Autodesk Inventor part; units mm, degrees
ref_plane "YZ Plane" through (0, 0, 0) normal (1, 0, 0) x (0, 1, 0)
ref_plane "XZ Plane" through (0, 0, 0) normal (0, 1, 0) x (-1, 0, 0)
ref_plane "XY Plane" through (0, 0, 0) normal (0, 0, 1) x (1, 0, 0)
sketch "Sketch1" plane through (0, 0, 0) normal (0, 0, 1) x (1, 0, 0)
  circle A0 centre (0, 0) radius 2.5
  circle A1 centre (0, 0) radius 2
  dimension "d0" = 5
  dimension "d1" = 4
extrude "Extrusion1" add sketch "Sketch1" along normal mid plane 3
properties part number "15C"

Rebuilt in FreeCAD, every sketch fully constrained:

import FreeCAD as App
import Part
import Sketcher
from FreeCAD import Vector
Q = App.Units.Quantity

doc = App.newDocument("Part")
body = doc.addObject("PartDesign::Body", "Body")

# Sketch on XY plane
sketch1 = doc.addObject("Sketcher::SketchObject", "Sketch")
body.addObject(sketch1)
sketch1.AttachmentSupport = (doc.XY_Plane, [""])
sketch1.MapMode = "FlatFace"
sketch1.addGeometry(Part.Circle(Vector(0, 0, 0), Vector(0, 0, 1), 2.5), False)
sketch1.addGeometry(Part.Circle(Vector(0, 0, 0), Vector(0, 0, 1), 2), False)
sketch1.addConstraint(Sketcher.Constraint("Coincident", 0, 3, -1, 1))
sketch1.addConstraint(Sketcher.Constraint("Coincident", 1, 3, -1, 1))
sketch1.addConstraint(Sketcher.Constraint("Diameter", 0, Q("5 mm")))
sketch1.addConstraint(Sketcher.Constraint("Diameter", 1, Q("4 mm")))
pad1 = doc.addObject("PartDesign::Pad", "Pad")
body.addObject(pad1)
pad1.Profile = sketch1
pad1.Length = 3
pad1.Midplane = True

doc.recompute()
